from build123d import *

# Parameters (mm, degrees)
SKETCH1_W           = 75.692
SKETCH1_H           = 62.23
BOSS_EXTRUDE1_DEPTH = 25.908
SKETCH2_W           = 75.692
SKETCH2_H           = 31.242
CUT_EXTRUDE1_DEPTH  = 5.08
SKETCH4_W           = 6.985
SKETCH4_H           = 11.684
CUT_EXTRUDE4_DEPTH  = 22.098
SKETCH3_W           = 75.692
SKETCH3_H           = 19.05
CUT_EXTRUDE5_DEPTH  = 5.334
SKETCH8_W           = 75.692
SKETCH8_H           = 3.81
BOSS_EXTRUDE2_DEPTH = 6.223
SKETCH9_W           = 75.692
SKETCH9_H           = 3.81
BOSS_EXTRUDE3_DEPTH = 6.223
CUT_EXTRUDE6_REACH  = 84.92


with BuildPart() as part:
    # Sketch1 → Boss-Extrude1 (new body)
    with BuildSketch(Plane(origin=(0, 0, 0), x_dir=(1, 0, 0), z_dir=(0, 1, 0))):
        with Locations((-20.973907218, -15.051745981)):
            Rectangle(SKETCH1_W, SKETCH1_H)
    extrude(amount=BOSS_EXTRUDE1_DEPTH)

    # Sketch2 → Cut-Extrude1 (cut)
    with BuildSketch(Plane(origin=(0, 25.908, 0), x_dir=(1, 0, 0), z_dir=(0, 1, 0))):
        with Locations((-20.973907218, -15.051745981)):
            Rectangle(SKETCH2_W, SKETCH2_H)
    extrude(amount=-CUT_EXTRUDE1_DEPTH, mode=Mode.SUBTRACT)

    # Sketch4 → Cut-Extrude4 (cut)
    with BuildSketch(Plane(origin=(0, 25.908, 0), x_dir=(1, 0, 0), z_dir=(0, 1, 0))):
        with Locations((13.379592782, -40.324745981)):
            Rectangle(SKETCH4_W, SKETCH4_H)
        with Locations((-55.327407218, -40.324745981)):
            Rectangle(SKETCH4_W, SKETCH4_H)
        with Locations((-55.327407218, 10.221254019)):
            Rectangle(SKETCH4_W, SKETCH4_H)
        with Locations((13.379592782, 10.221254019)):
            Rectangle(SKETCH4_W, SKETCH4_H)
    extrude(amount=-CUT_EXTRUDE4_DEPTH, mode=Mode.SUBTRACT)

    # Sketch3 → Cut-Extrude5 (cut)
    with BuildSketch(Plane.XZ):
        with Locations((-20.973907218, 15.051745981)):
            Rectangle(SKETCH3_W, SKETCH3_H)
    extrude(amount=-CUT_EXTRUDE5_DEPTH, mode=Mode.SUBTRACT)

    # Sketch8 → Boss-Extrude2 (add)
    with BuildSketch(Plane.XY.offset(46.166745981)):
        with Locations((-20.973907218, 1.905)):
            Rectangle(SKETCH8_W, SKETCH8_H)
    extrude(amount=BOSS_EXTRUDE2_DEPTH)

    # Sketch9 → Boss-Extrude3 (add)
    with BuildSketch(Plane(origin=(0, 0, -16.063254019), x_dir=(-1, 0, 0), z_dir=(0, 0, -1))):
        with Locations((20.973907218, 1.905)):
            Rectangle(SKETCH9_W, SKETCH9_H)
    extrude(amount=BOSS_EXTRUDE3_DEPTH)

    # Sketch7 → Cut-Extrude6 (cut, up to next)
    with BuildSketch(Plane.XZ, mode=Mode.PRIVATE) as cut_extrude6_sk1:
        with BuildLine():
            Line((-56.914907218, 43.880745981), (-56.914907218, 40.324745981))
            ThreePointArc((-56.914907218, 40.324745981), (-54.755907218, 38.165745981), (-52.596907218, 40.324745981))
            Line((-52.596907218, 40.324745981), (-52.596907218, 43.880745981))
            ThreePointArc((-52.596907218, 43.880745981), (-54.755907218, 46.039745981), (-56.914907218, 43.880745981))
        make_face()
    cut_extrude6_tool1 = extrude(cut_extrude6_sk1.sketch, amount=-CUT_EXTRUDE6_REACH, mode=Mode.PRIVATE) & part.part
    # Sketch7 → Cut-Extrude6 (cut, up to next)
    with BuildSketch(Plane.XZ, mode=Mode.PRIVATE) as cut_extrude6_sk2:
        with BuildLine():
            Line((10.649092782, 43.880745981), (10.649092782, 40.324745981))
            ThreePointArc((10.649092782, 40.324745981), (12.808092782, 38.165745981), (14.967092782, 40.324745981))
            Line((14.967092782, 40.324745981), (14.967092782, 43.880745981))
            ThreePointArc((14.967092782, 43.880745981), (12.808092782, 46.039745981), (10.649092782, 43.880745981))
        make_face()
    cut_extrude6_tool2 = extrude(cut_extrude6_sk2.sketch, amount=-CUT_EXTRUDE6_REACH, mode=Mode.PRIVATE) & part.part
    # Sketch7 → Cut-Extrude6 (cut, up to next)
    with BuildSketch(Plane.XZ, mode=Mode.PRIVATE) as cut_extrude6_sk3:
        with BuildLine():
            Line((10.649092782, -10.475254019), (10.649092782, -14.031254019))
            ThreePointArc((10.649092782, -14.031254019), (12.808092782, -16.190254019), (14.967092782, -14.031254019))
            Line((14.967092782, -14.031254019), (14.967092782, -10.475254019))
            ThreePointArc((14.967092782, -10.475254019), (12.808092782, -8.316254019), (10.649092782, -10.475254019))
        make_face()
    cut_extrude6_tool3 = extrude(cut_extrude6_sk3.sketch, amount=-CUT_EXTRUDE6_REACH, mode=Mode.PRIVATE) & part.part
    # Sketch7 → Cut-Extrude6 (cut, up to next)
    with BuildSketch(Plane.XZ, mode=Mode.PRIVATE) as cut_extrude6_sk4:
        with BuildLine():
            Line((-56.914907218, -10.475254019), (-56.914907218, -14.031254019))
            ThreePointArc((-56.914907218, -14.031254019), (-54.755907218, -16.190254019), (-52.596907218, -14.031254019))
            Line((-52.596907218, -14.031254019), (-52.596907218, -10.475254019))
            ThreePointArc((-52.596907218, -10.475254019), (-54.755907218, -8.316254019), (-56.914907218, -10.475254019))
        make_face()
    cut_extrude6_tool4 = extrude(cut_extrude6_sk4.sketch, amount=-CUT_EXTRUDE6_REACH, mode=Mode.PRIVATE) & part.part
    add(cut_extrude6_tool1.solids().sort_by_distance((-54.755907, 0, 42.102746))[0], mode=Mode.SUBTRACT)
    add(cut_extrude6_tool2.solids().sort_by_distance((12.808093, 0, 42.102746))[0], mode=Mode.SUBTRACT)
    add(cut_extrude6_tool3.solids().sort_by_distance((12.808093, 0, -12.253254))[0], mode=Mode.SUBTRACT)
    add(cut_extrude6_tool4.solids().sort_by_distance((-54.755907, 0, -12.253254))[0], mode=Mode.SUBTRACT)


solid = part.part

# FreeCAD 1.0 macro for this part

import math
import FreeCAD as App
import Part
import Sketcher

V = App.Vector
Q = App.Units.Quantity

doc = App.newDocument("Part")
body = doc.addObject("PartDesign::Body", "Body")

sketch1 = body.newObject("Sketcher::SketchObject", "Sketch")
sketch1.AttachmentSupport = (doc.getObject("XZ_Plane"), [""])
sketch1.MapMode = "FlatFace"
sketch1.addGeometry([
    Part.LineSegment(V(-59, -16, 0), V(-59, 46, 0)),
    Part.LineSegment(V(-59, 46, 0), V(17, 46, 0)),
    Part.LineSegment(V(17, 46, 0), V(17, -16, 0)),
    Part.LineSegment(V(17, -16, 0), V(-59, -16, 0)),
], False)
sketch1.addConstraint([
    Sketcher.Constraint("Coincident", 0, 2, 1, 1),
    Sketcher.Constraint("Coincident", 1, 2, 2, 1),
    Sketcher.Constraint("Coincident", 2, 2, 3, 1),
    Sketcher.Constraint("Coincident", 3, 2, 0, 1),
    Sketcher.Constraint("Vertical", 0),
    Sketcher.Constraint("Horizontal", 1),
    Sketcher.Constraint("Vertical", 2),
    Sketcher.Constraint("Horizontal", 3),
    Sketcher.Constraint("DistanceX", 1, 1, 1, 2, Q("2.98 in")),
    Sketcher.Constraint("DistanceY", 0, 1, 0, 2, Q("2.45 in")),
    Sketcher.Constraint("DistanceX", 0, 2, -1, 1, Q("58.819907 mm")),
    Sketcher.Constraint("DistanceY", -1, 1, 0, 2, Q("46.166746 mm")),
])
pad1 = body.newObject("PartDesign::Pad", "Pad")
pad1.Profile = sketch1
pad1.Length = Q("1.02 in")
pad1.Reversed = True

sketch2 = body.newObject("Sketcher::SketchObject", "Sketch001")
sketch2.AttachmentSupport = (doc.getObject("XZ_Plane"), [""])
sketch2.MapMode = "FlatFace"
sketch2.AttachmentOffset = App.Placement(V(0, 0, -1.02 * 25.4), App.Rotation())
sketch2.addGeometry([
    Part.LineSegment(V(-59, -1, 0), V(-59, 31, 0)),
    Part.LineSegment(V(-59, 31, 0), V(17, 31, 0)),
    Part.LineSegment(V(17, 31, 0), V(17, -1, 0)),
    Part.LineSegment(V(17, -1, 0), V(-59, -1, 0)),
], False)
sketch2.addConstraint([
    Sketcher.Constraint("Coincident", 0, 2, 1, 1),
    Sketcher.Constraint("Coincident", 1, 2, 2, 1),
    Sketcher.Constraint("Coincident", 2, 2, 3, 1),
    Sketcher.Constraint("Coincident", 3, 2, 0, 1),
    Sketcher.Constraint("Vertical", 0),
    Sketcher.Constraint("Horizontal", 1),
    Sketcher.Constraint("Vertical", 2),
    Sketcher.Constraint("Horizontal", 3),
    Sketcher.Constraint("DistanceX", 1, 1, 1, 2, Q("2.98 in")),
    Sketcher.Constraint("DistanceY", 0, 1, 0, 2, Q("1.23 in")),
    Sketcher.Constraint("DistanceX", 0, 2, -1, 1, Q("58.819907 mm")),
    Sketcher.Constraint("DistanceY", -1, 1, 0, 2, Q("30.672746 mm")),
])
pocket1 = body.newObject("PartDesign::Pocket", "Pocket")
pocket1.Profile = sketch2
pocket1.Length = Q("0.2 in")
pocket1.Reversed = True

sketch3 = body.newObject("Sketcher::SketchObject", "Sketch002")
sketch3.AttachmentSupport = (doc.getObject("XZ_Plane"), [""])
sketch3.MapMode = "FlatFace"
sketch3.AttachmentOffset = App.Placement(V(0, 0, -1.02 * 25.4), App.Rotation())
sketch3.addGeometry([
    Part.LineSegment(V(10, 34, 0), V(10, 46, 0)),
    Part.LineSegment(V(10, 46, 0), V(17, 46, 0)),
    Part.LineSegment(V(17, 46, 0), V(17, 34, 0)),
    Part.LineSegment(V(17, 34, 0), V(10, 34, 0)),
    Part.LineSegment(V(-59, 34, 0), V(-59, 46, 0)),
    Part.LineSegment(V(-59, 46, 0), V(-52, 46, 0)),
    Part.LineSegment(V(-52, 46, 0), V(-52, 34, 0)),
    Part.LineSegment(V(-52, 34, 0), V(-59, 34, 0)),
    Part.LineSegment(V(-59, -16, 0), V(-59, -4, 0)),
    Part.LineSegment(V(-59, -4, 0), V(-52, -4, 0)),
    Part.LineSegment(V(-52, -4, 0), V(-52, -16, 0)),
    Part.LineSegment(V(-52, -16, 0), V(-59, -16, 0)),
    Part.LineSegment(V(10, -16, 0), V(10, -4, 0)),
    Part.LineSegment(V(10, -4, 0), V(17, -4, 0)),
    Part.LineSegment(V(17, -4, 0), V(17, -16, 0)),
    Part.LineSegment(V(17, -16, 0), V(10, -16, 0)),
], False)
sketch3.addConstraint([
    Sketcher.Constraint("Coincident", 0, 2, 1, 1),
    Sketcher.Constraint("Coincident", 1, 2, 2, 1),
    Sketcher.Constraint("Coincident", 2, 2, 3, 1),
    Sketcher.Constraint("Coincident", 3, 2, 0, 1),
    Sketcher.Constraint("Coincident", 4, 2, 5, 1),
    Sketcher.Constraint("Coincident", 5, 2, 6, 1),
    Sketcher.Constraint("Coincident", 6, 2, 7, 1),
    Sketcher.Constraint("Coincident", 7, 2, 4, 1),
    Sketcher.Constraint("Coincident", 8, 2, 9, 1),
    Sketcher.Constraint("Coincident", 9, 2, 10, 1),
    Sketcher.Constraint("Coincident", 10, 2, 11, 1),
    Sketcher.Constraint("Coincident", 11, 2, 8, 1),
    Sketcher.Constraint("Coincident", 12, 2, 13, 1),
    Sketcher.Constraint("Coincident", 13, 2, 14, 1),
    Sketcher.Constraint("Coincident", 14, 2, 15, 1),
    Sketcher.Constraint("Coincident", 15, 2, 12, 1),
    Sketcher.Constraint("Vertical", 0),
    Sketcher.Constraint("Horizontal", 1),
    Sketcher.Constraint("Vertical", 2),
    Sketcher.Constraint("Horizontal", 3),
    Sketcher.Constraint("Vertical", 4),
    Sketcher.Constraint("Horizontal", 5),
    Sketcher.Constraint("Vertical", 6),
    Sketcher.Constraint("Horizontal", 7),
    Sketcher.Constraint("Vertical", 8),
    Sketcher.Constraint("Horizontal", 9),
    Sketcher.Constraint("Vertical", 10),
    Sketcher.Constraint("Horizontal", 11),
    Sketcher.Constraint("Vertical", 12),
    Sketcher.Constraint("Horizontal", 13),
    Sketcher.Constraint("Vertical", 14),
    Sketcher.Constraint("Horizontal", 15),
    Sketcher.Constraint("Horizontal", 1, 2, 4, 2),
    Sketcher.Constraint("Horizontal", 3, 2, 6, 2),
    Sketcher.Constraint("Horizontal", 9, 2, 12, 2),
    Sketcher.Constraint("Horizontal", 11, 2, 14, 2),
    Sketcher.Constraint("Vertical", 7, 2, 8, 2),
    Sketcher.Constraint("Vertical", 6, 2, 9, 2),
    Sketcher.Constraint("Vertical", 3, 2, 12, 2),
    Sketcher.Constraint("Vertical", 2, 2, 13, 2),
    Sketcher.Constraint("Equal", 3, 5),
    Sketcher.Constraint("Equal", 6, 8),
    Sketcher.Constraint("DistanceY", 0, 1, 0, 2, Q("0.46 in")),
    Sketcher.Constraint("DistanceX", 1, 1, 1, 2, Q("0.275 in")),
    Sketcher.Constraint("DistanceX", 4, 2, 1, 2, Q("2.98 in")),
    Sketcher.Constraint("DistanceY", 8, 2, 7, 2, Q("1.53 in")),
    Sketcher.Constraint("DistanceX", -1, 1, 0, 2, Q("9.887093 mm")),
    Sketcher.Constraint("DistanceY", -1, 1, 0, 2, Q("46.166746 mm")),
])
pocket2 = body.newObject("PartDesign::Pocket", "Pocket001")
pocket2.Profile = sketch3
pocket2.Length = Q("0.87 in")
pocket2.Reversed = True

sketch4 = body.newObject("Sketcher::SketchObject", "Sketch003")
sketch4.AttachmentSupport = (doc.getObject("XZ_Plane"), [""])
sketch4.MapMode = "FlatFace"
sketch4.addGeometry([
    Part.LineSegment(V(-59, 25, 0), V(-59, 6, 0)),
    Part.LineSegment(V(-59, 6, 0), V(17, 6, 0)),
    Part.LineSegment(V(17, 6, 0), V(17, 25, 0)),
    Part.LineSegment(V(17, 25, 0), V(-59, 25, 0)),
], False)
sketch4.addConstraint([
    Sketcher.Constraint("Coincident", 0, 2, 1, 1),
    Sketcher.Constraint("Coincident", 1, 2, 2, 1),
    Sketcher.Constraint("Coincident", 2, 2, 3, 1),
    Sketcher.Constraint("Coincident", 3, 2, 0, 1),
    Sketcher.Constraint("Vertical", 0),
    Sketcher.Constraint("Horizontal", 1),
    Sketcher.Constraint("Vertical", 2),
    Sketcher.Constraint("Horizontal", 3),
    Sketcher.Constraint("DistanceX", 1, 1, 1, 2, Q("2.98 in")),
    Sketcher.Constraint("DistanceY", 0, 2, 0, 1, Q("0.75 in")),
    Sketcher.Constraint("DistanceX", 0, 2, -1, 1, Q("58.819907 mm")),
    Sketcher.Constraint("DistanceY", -1, 1, 0, 2, Q("5.526746 mm")),
])
pocket3 = body.newObject("PartDesign::Pocket", "Pocket002")
pocket3.Profile = sketch4
pocket3.Length = Q("0.21 in")

sketch5 = body.newObject("Sketcher::SketchObject", "Sketch004")
sketch5.AttachmentSupport = (doc.getObject("XY_Plane"), [""])
sketch5.MapMode = "FlatFace"
sketch5.AttachmentOffset = App.Placement(V(0, 0, 46.166746), App.Rotation())
sketch5.addGeometry([
    Part.LineSegment(V(-58.8, 3.8, 0), V(-58.8, 0, 0)),
    Part.LineSegment(V(-58.8, 0, 0), V(16.9, 0, 0)),
    Part.LineSegment(V(16.9, 0, 0), V(16.9, 3.8, 0)),
    Part.LineSegment(V(16.9, 3.8, 0), V(-58.8, 3.8, 0)),
], False)
sketch5.addConstraint([
    Sketcher.Constraint("Coincident", 0, 2, 1, 1),
    Sketcher.Constraint("Coincident", 1, 2, 2, 1),
    Sketcher.Constraint("Coincident", 2, 2, 3, 1),
    Sketcher.Constraint("Coincident", 3, 2, 0, 1),
    Sketcher.Constraint("Vertical", 0),
    Sketcher.Constraint("Horizontal", 1),
    Sketcher.Constraint("Vertical", 2),
    Sketcher.Constraint("Horizontal", 3),
    Sketcher.Constraint("PointOnObject", 0, 2, -1),
    Sketcher.Constraint("DistanceX", 1, 1, 1, 2, Q("2.98 in")),
    Sketcher.Constraint("DistanceY", 0, 2, 0, 1, Q("0.15 in")),
    Sketcher.Constraint("DistanceX", 0, 2, -1, 1, Q("58.819907 mm")),
])
pad2 = body.newObject("PartDesign::Pad", "Pad001")
pad2.Profile = sketch5
pad2.Length = Q("0.245 in")

sketch6 = body.newObject("Sketcher::SketchObject", "Sketch005")
sketch6.AttachmentSupport = (doc.getObject("XY_Plane"), [""])
sketch6.MapMode = "FlatFace"
sketch6.AttachmentOffset = App.Placement(V(0, 0, -16.063254), App.Rotation())
sketch6.addGeometry([
    Part.LineSegment(V(16.9, 3.8, 0), V(16.9, 0, 0)),
    Part.LineSegment(V(16.9, 0, 0), V(-58.8, 0, 0)),
    Part.LineSegment(V(-58.8, 0, 0), V(-58.8, 3.8, 0)),
    Part.LineSegment(V(-58.8, 3.8, 0), V(16.9, 3.8, 0)),
], False)
sketch6.addConstraint([
    Sketcher.Constraint("Coincident", 0, 2, 1, 1),
    Sketcher.Constraint("Coincident", 1, 2, 2, 1),
    Sketcher.Constraint("Coincident", 2, 2, 3, 1),
    Sketcher.Constraint("Coincident", 3, 2, 0, 1),
    Sketcher.Constraint("Vertical", 0),
    Sketcher.Constraint("Horizontal", 1),
    Sketcher.Constraint("Vertical", 2),
    Sketcher.Constraint("Horizontal", 3),
    Sketcher.Constraint("PointOnObject", 0, 2, -1),
    Sketcher.Constraint("DistanceX", 1, 2, 1, 1, Q("2.98 in")),
    Sketcher.Constraint("DistanceY", 0, 2, 0, 1, Q("0.15 in")),
    Sketcher.Constraint("DistanceX", -1, 1, 0, 2, Q("16.872093 mm")),
])
pad3 = body.newObject("PartDesign::Pad", "Pad002")
pad3.Profile = sketch6
pad3.Length = Q("0.245 in")
pad3.Reversed = True

sketch7 = body.newObject("Sketcher::SketchObject", "Sketch006")
sketch7.AttachmentSupport = (doc.getObject("XZ_Plane"), [""])
sketch7.MapMode = "FlatFace"
sketch7.addGeometry([
    Part.LineSegment(V(-56.9, 43.9, 0), V(-56.9, 40.3, 0)),
    Part.ArcOfCircle(Part.Circle(V(-54.8, 40.3, 0), V(0, 0, 1), 2.2), math.radians(180), math.radians(360)),
    Part.LineSegment(V(-52.6, 40.3, 0), V(-52.6, 43.9, 0)),
    Part.ArcOfCircle(Part.Circle(V(-54.8, 43.9, 0), V(0, 0, 1), 2.2), math.radians(0), math.radians(180)),
], False)
sketch7.addConstraint([
    Sketcher.Constraint("Tangent", 0, 2, 1, 1),
    Sketcher.Constraint("Tangent", 1, 2, 2, 1),
    Sketcher.Constraint("Tangent", 2, 2, 3, 1),
    Sketcher.Constraint("Tangent", 3, 2, 0, 1),
    Sketcher.Constraint("Vertical", 0),
    Sketcher.Constraint("Vertical", 2),
    Sketcher.Constraint("Radius", 1, Q("0.085 in")),
    Sketcher.Constraint("DistanceY", 0, 2, 0, 1, Q("0.14 in")),
    Sketcher.Constraint("DistanceX", 1, 3, -1, 1, Q("54.755907 mm")),
    Sketcher.Constraint("DistanceY", -1, 1, 1, 3, Q("40.324746 mm")),
])
pocket4 = body.newObject("PartDesign::Pocket", "Pocket003")
pocket4.Profile = sketch7
pocket4.Type = "UpToFirst"

sketch8 = body.newObject("Sketcher::SketchObject", "Sketch007")
sketch8.AttachmentSupport = (doc.getObject("XZ_Plane"), [""])
sketch8.MapMode = "FlatFace"
sketch8.addGeometry([
    Part.LineSegment(V(10.6, 43.9, 0), V(10.6, 40.3, 0)),
    Part.ArcOfCircle(Part.Circle(V(12.8, 40.3, 0), V(0, 0, 1), 2.2), math.radians(180), math.radians(360)),
    Part.LineSegment(V(15, 40.3, 0), V(15, 43.9, 0)),
    Part.ArcOfCircle(Part.Circle(V(12.8, 43.9, 0), V(0, 0, 1), 2.2), math.radians(0), math.radians(180)),
], False)
sketch8.addConstraint([
    Sketcher.Constraint("Tangent", 0, 2, 1, 1),
    Sketcher.Constraint("Tangent", 1, 2, 2, 1),
    Sketcher.Constraint("Tangent", 2, 2, 3, 1),
    Sketcher.Constraint("Tangent", 3, 2, 0, 1),
    Sketcher.Constraint("Vertical", 0),
    Sketcher.Constraint("Vertical", 2),
    Sketcher.Constraint("Radius", 1, Q("0.085 in")),
    Sketcher.Constraint("DistanceY", 0, 2, 0, 1, Q("0.14 in")),
    Sketcher.Constraint("DistanceX", -1, 1, 1, 3, Q("12.808093 mm")),
    Sketcher.Constraint("DistanceY", -1, 1, 1, 3, Q("40.324746 mm")),
])
pocket5 = body.newObject("PartDesign::Pocket", "Pocket004")
pocket5.Profile = sketch8
pocket5.Type = "UpToFirst"

sketch9 = body.newObject("Sketcher::SketchObject", "Sketch008")
sketch9.AttachmentSupport = (doc.getObject("XZ_Plane"), [""])
sketch9.MapMode = "FlatFace"
sketch9.addGeometry([
    Part.LineSegment(V(10.6, -10.5, 0), V(10.6, -14, 0)),
    Part.ArcOfCircle(Part.Circle(V(12.8, -14, 0), V(0, 0, 1), 2.2), math.radians(180), math.radians(360)),
    Part.LineSegment(V(15, -14, 0), V(15, -10.5, 0)),
    Part.ArcOfCircle(Part.Circle(V(12.8, -10.5, 0), V(0, 0, 1), 2.2), math.radians(0), math.radians(180)),
], False)
sketch9.addConstraint([
    Sketcher.Constraint("Tangent", 0, 2, 1, 1),
    Sketcher.Constraint("Tangent", 1, 2, 2, 1),
    Sketcher.Constraint("Tangent", 2, 2, 3, 1),
    Sketcher.Constraint("Tangent", 3, 2, 0, 1),
    Sketcher.Constraint("Vertical", 0),
    Sketcher.Constraint("Vertical", 2),
    Sketcher.Constraint("Radius", 1, Q("0.085 in")),
    Sketcher.Constraint("DistanceY", 0, 2, 0, 1, Q("0.14 in")),
    Sketcher.Constraint("DistanceX", -1, 1, 1, 3, Q("12.808093 mm")),
    Sketcher.Constraint("DistanceY", 1, 3, -1, 1, Q("14.031254 mm")),
])
pocket6 = body.newObject("PartDesign::Pocket", "Pocket005")
pocket6.Profile = sketch9
pocket6.Type = "UpToFirst"

sketch10 = body.newObject("Sketcher::SketchObject", "Sketch009")
sketch10.AttachmentSupport = (doc.getObject("XZ_Plane"), [""])
sketch10.MapMode = "FlatFace"
sketch10.addGeometry([
    Part.LineSegment(V(-56.9, -10.5, 0), V(-56.9, -14, 0)),
    Part.ArcOfCircle(Part.Circle(V(-54.8, -14, 0), V(0, 0, 1), 2.2), math.radians(180), math.radians(360)),
    Part.LineSegment(V(-52.6, -14, 0), V(-52.6, -10.5, 0)),
    Part.ArcOfCircle(Part.Circle(V(-54.8, -10.5, 0), V(0, 0, 1), 2.2), math.radians(0), math.radians(180)),
], False)
sketch10.addConstraint([
    Sketcher.Constraint("Tangent", 0, 2, 1, 1),
    Sketcher.Constraint("Tangent", 1, 2, 2, 1),
    Sketcher.Constraint("Tangent", 2, 2, 3, 1),
    Sketcher.Constraint("Tangent", 3, 2, 0, 1),
    Sketcher.Constraint("Vertical", 0),
    Sketcher.Constraint("Vertical", 2),
    Sketcher.Constraint("Radius", 1, Q("0.085 in")),
    Sketcher.Constraint("DistanceY", 0, 2, 0, 1, Q("0.14 in")),
    Sketcher.Constraint("DistanceX", 1, 3, -1, 1, Q("54.755907 mm")),
    Sketcher.Constraint("DistanceY", 1, 3, -1, 1, Q("14.031254 mm")),
])
pocket7 = body.newObject("PartDesign::Pocket", "Pocket006")
pocket7.Profile = sketch10
pocket7.Type = "UpToFirst"

doc.recompute()
